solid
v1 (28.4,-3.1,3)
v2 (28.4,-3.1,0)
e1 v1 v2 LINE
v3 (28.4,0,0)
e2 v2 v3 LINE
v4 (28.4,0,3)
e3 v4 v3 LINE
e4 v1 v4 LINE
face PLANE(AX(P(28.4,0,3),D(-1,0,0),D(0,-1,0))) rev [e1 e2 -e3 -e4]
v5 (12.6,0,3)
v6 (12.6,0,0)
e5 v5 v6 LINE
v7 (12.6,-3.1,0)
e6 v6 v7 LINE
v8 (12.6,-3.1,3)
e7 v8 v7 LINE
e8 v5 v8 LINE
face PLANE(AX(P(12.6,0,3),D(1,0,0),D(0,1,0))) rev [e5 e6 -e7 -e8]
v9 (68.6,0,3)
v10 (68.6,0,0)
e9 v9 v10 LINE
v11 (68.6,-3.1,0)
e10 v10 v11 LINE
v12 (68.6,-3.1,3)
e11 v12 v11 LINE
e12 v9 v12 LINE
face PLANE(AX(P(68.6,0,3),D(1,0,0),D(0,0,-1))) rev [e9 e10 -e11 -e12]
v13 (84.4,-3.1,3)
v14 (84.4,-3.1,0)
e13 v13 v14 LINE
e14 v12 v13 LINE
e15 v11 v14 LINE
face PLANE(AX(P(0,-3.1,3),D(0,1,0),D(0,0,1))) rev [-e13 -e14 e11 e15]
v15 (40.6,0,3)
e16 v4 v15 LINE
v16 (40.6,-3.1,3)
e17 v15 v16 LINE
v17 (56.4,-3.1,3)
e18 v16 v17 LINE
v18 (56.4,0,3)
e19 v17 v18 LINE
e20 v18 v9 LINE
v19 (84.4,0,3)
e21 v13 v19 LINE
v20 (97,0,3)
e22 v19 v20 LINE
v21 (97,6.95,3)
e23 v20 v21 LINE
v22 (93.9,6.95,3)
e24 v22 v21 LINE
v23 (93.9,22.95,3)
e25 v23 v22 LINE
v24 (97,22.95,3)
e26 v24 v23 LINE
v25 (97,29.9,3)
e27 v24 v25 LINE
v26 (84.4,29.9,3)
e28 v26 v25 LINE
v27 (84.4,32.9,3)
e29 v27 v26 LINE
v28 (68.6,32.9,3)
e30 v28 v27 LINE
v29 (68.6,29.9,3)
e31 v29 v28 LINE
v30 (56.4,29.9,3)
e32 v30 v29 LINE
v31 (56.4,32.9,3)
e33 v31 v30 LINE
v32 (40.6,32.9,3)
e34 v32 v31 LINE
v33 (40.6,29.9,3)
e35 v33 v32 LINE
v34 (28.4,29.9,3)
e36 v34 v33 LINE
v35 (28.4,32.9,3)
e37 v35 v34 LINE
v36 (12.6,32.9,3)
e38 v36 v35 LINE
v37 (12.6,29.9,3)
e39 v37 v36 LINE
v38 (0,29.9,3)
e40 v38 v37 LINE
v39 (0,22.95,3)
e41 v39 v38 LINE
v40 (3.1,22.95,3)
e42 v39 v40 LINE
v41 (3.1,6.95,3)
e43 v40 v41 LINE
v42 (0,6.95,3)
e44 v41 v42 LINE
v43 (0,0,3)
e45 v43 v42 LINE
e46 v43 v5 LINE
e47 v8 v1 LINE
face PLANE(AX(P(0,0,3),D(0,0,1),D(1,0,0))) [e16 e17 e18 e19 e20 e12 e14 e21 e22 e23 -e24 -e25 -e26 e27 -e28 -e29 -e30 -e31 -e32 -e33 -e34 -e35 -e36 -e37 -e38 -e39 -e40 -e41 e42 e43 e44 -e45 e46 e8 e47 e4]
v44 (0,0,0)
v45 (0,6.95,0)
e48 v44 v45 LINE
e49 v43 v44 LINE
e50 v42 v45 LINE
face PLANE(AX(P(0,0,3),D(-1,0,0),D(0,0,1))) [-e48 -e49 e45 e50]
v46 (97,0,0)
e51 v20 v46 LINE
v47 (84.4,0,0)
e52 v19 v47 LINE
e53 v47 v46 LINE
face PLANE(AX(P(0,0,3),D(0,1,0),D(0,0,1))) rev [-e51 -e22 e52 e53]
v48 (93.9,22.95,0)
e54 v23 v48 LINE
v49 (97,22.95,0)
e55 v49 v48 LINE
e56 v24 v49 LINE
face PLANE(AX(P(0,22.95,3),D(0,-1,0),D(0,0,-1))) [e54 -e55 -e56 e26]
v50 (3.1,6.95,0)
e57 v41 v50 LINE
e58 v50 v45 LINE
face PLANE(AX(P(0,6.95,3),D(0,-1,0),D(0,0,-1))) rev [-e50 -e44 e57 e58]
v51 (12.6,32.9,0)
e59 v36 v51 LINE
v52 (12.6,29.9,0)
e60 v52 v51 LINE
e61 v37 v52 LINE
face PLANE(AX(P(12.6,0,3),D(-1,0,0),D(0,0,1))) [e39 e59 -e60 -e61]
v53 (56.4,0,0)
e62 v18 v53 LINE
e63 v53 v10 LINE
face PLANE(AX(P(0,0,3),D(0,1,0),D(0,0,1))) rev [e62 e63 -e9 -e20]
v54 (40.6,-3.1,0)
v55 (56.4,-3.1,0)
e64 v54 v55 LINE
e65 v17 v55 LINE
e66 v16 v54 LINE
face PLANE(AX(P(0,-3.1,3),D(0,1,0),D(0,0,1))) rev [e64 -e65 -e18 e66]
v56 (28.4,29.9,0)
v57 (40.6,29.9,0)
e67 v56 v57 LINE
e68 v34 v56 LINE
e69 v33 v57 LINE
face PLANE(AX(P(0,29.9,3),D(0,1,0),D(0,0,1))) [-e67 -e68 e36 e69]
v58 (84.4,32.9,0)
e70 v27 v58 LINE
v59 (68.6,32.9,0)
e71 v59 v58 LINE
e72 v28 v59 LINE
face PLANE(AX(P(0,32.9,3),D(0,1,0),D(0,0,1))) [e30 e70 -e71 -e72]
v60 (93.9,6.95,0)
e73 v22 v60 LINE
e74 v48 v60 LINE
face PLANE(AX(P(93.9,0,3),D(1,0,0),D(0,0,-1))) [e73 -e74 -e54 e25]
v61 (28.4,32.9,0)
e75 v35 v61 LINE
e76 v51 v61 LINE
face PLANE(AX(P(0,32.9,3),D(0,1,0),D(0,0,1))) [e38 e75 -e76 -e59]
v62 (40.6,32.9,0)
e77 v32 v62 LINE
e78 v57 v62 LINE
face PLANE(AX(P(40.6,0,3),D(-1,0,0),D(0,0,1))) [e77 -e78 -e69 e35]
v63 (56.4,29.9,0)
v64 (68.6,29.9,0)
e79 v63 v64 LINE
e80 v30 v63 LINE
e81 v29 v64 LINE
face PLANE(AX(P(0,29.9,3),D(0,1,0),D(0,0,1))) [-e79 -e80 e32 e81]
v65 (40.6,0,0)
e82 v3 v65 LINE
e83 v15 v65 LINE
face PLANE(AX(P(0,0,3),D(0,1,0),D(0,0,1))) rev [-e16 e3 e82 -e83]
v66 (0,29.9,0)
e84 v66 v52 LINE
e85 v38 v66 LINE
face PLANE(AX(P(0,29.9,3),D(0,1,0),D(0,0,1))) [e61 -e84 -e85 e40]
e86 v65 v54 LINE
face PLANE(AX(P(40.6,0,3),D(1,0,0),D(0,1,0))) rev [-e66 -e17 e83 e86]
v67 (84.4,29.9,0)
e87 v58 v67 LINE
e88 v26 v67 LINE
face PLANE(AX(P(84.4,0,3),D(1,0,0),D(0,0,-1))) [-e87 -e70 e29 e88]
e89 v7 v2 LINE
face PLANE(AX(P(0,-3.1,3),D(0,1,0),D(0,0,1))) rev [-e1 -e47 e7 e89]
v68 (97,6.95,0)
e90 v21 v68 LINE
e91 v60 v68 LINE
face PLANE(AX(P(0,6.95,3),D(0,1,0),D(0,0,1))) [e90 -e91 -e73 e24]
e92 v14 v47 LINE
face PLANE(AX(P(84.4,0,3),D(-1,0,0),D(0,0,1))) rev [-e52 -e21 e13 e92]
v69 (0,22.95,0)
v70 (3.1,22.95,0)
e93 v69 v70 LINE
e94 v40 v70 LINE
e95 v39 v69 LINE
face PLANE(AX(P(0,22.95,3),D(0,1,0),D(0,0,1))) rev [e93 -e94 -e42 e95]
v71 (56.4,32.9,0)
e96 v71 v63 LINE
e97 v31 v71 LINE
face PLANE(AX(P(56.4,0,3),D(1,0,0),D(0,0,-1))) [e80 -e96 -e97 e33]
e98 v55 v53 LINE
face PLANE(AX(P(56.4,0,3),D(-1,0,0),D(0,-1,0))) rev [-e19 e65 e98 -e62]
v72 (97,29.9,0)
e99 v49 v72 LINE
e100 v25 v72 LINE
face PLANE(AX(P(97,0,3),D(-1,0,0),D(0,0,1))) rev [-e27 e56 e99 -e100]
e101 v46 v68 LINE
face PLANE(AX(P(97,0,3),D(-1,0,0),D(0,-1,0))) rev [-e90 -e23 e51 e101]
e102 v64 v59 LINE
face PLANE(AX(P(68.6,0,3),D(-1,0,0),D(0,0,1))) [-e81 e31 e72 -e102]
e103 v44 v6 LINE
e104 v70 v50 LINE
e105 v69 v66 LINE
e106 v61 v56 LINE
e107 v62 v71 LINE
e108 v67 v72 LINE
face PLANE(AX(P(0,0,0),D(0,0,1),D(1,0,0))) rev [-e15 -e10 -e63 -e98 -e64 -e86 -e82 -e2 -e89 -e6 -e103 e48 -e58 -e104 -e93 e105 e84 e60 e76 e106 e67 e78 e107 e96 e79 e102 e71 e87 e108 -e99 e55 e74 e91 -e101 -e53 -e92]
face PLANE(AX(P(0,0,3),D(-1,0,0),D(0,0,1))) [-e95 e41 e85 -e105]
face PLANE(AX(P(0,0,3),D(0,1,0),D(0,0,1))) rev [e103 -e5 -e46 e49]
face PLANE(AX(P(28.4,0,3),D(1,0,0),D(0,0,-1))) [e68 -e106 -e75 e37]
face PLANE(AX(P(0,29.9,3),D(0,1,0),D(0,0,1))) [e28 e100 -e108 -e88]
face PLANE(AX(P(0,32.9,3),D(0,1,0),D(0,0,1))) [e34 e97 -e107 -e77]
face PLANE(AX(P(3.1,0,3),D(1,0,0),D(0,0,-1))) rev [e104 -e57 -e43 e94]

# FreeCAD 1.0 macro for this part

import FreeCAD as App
import Part
import Sketcher

V = App.Vector

doc = App.newDocument("Part")
body = doc.addObject("PartDesign::Body", "Body")

# Sketch on XY plane
sketch1 = body.newObject("Sketcher::SketchObject", "Sketch")
sketch1.AttachmentSupport = (doc.getObject("XY_Plane"), [""])
sketch1.MapMode = "FlatFace"
sketch1.addGeometry([
    Part.LineSegment(V(93.9, 22.95, 0), V(97, 22.95, 0)),  # 0
    Part.LineSegment(V(97, 22.95, 0), V(97, 29.9, 0)),  # 1
    Part.LineSegment(V(97, 29.9, 0), V(84.4, 29.9, 0)),  # 2
    Part.LineSegment(V(84.4, 29.9, 0), V(84.4, 32.9, 0)),  # 3
    Part.LineSegment(V(84.4, 32.9, 0), V(68.6, 32.9, 0)),  # 4
    Part.LineSegment(V(68.6, 32.9, 0), V(68.6, 29.9, 0)),  # 5
    Part.LineSegment(V(68.6, 29.9, 0), V(56.4, 29.9, 0)),  # 6
    Part.LineSegment(V(56.4, 29.9, 0), V(56.4, 32.9, 0)),  # 7
    Part.LineSegment(V(56.4, 32.9, 0), V(40.6, 32.9, 0)),  # 8
    Part.LineSegment(V(40.6, 32.9, 0), V(40.6, 29.9, 0)),  # 9
    Part.LineSegment(V(40.6, 29.9, 0), V(28.4, 29.9, 0)),  # 10
    Part.LineSegment(V(28.4, 29.9, 0), V(28.4, 32.9, 0)),  # 11
    Part.LineSegment(V(28.4, 32.9, 0), V(12.6, 32.9, 0)),  # 12
    Part.LineSegment(V(12.6, 32.9, 0), V(12.6, 29.9, 0)),  # 13
    Part.LineSegment(V(12.6, 29.9, 0), V(0, 29.9, 0)),  # 14
    Part.LineSegment(V(0, 29.9, 0), V(0, 22.95, 0)),  # 15
    Part.LineSegment(V(0, 22.95, 0), V(3.1, 22.95, 0)),  # 16
    Part.LineSegment(V(3.1, 22.95, 0), V(3.1, 6.95, 0)),  # 17
    Part.LineSegment(V(3.1, 6.95, 0), V(0, 6.95, 0)),  # 18
    Part.LineSegment(V(0, 6.95, 0), V(0, 0, 0)),  # 19
    Part.LineSegment(V(0, 0, 0), V(12.6, 0, 0)),  # 20
    Part.LineSegment(V(12.6, 0, 0), V(12.6, -3.1, 0)),  # 21
    Part.LineSegment(V(12.6, -3.1, 0), V(28.4, -3.1, 0)),  # 22
    Part.LineSegment(V(28.4, -3.1, 0), V(28.4, 0, 0)),  # 23
    Part.LineSegment(V(28.4, 0, 0), V(40.6, 0, 0)),  # 24
    Part.LineSegment(V(40.6, 0, 0), V(40.6, -3.1, 0)),  # 25
    Part.LineSegment(V(40.6, -3.1, 0), V(56.4, -3.1, 0)),  # 26
    Part.LineSegment(V(56.4, -3.1, 0), V(56.4, 0, 0)),  # 27
    Part.LineSegment(V(56.4, 0, 0), V(68.6, 0, 0)),  # 28
    Part.LineSegment(V(68.6, 0, 0), V(68.6, -3.1, 0)),  # 29
    Part.LineSegment(V(68.6, -3.1, 0), V(84.4, -3.1, 0)),  # 30
    Part.LineSegment(V(84.4, -3.1, 0), V(84.4, 0, 0)),  # 31
    Part.LineSegment(V(84.4, 0, 0), V(97, 0, 0)),  # 32
    Part.LineSegment(V(97, 0, 0), V(97, 6.95, 0)),  # 33
    Part.LineSegment(V(97, 6.95, 0), V(93.9, 6.95, 0)),  # 34
    Part.LineSegment(V(93.9, 6.95, 0), V(93.9, 22.95, 0)),  # 35
], False)
sketch1.addConstraint([
    Sketcher.Constraint("Coincident", 0, 2, 1, 1),
    Sketcher.Constraint("Coincident", 1, 2, 2, 1),
    Sketcher.Constraint("Coincident", 2, 2, 3, 1),
    Sketcher.Constraint("Coincident", 3, 2, 4, 1),
    Sketcher.Constraint("Coincident", 4, 2, 5, 1),
    Sketcher.Constraint("Coincident", 5, 2, 6, 1),
    Sketcher.Constraint("Coincident", 6, 2, 7, 1),
    Sketcher.Constraint("Coincident", 7, 2, 8, 1),
    Sketcher.Constraint("Coincident", 8, 2, 9, 1),
    Sketcher.Constraint("Coincident", 9, 2, 10, 1),
    Sketcher.Constraint("Coincident", 10, 2, 11, 1),
    Sketcher.Constraint("Coincident", 11, 2, 12, 1),
    Sketcher.Constraint("Coincident", 12, 2, 13, 1),
    Sketcher.Constraint("Coincident", 13, 2, 14, 1),
    Sketcher.Constraint("Coincident", 14, 2, 15, 1),
    Sketcher.Constraint("Coincident", 15, 2, 16, 1),
    Sketcher.Constraint("Coincident", 16, 2, 17, 1),
    Sketcher.Constraint("Coincident", 17, 2, 18, 1),
    Sketcher.Constraint("Coincident", 18, 2, 19, 1),
    Sketcher.Constraint("Coincident", 19, 2, 20, 1),
    Sketcher.Constraint("Coincident", 20, 2, 21, 1),
    Sketcher.Constraint("Coincident", 21, 2, 22, 1),
    Sketcher.Constraint("Coincident", 22, 2, 23, 1),
    Sketcher.Constraint("Coincident", 23, 2, 24, 1),
    Sketcher.Constraint("Coincident", 24, 2, 25, 1),
    Sketcher.Constraint("Coincident", 25, 2, 26, 1),
    Sketcher.Constraint("Coincident", 26, 2, 27, 1),
    Sketcher.Constraint("Coincident", 27, 2, 28, 1),
    Sketcher.Constraint("Coincident", 28, 2, 29, 1),
    Sketcher.Constraint("Coincident", 29, 2, 30, 1),
    Sketcher.Constraint("Coincident", 30, 2, 31, 1),
    Sketcher.Constraint("Coincident", 31, 2, 32, 1),
    Sketcher.Constraint("Coincident", 32, 2, 33, 1),
    Sketcher.Constraint("Coincident", 33, 2, 34, 1),
    Sketcher.Constraint("Coincident", 34, 2, 35, 1),
    Sketcher.Constraint("Coincident", 35, 2, 0, 1),
    Sketcher.Constraint("Horizontal", 0),
    Sketcher.Constraint("Vertical", 1),
    Sketcher.Constraint("Horizontal", 2),
    Sketcher.Constraint("Vertical", 3),
    Sketcher.Constraint("Horizontal", 4),
    Sketcher.Constraint("Vertical", 5),
    Sketcher.Constraint("Horizontal", 6),
    Sketcher.Constraint("Vertical", 7),
    Sketcher.Constraint("Horizontal", 8),
    Sketcher.Constraint("Vertical", 9),
    Sketcher.Constraint("Horizontal", 10),
    Sketcher.Constraint("Vertical", 11),
    Sketcher.Constraint("Horizontal", 12),
    Sketcher.Constraint("Vertical", 13),
    Sketcher.Constraint("Horizontal", 14),
    Sketcher.Constraint("Vertical", 15),
    Sketcher.Constraint("Horizontal", 16),
    Sketcher.Constraint("Vertical", 17),
    Sketcher.Constraint("Horizontal", 18),
    Sketcher.Constraint("Vertical", 19),
    Sketcher.Constraint("Horizontal", 20),
    Sketcher.Constraint("Vertical", 21),
    Sketcher.Constraint("Horizontal", 22),
    Sketcher.Constraint("Vertical", 23),
    Sketcher.Constraint("Horizontal", 24),
    Sketcher.Constraint("Vertical", 25),
    Sketcher.Constraint("Horizontal", 26),
    Sketcher.Constraint("Vertical", 27),
    Sketcher.Constraint("Horizontal", 28),
    Sketcher.Constraint("Vertical", 29),
    Sketcher.Constraint("Horizontal", 30),
    Sketcher.Constraint("Vertical", 31),
    Sketcher.Constraint("Horizontal", 32),
    Sketcher.Constraint("Vertical", 33),
    Sketcher.Constraint("Horizontal", 34),
    Sketcher.Constraint("Vertical", 35),
    Sketcher.Constraint("Coincident", 19, 2, -1, 1),
    Sketcher.Constraint("PointOnObject", 14, 2, -2),
    Sketcher.Constraint("PointOnObject", 23, 2, -1),
    Sketcher.Constraint("PointOnObject", 27, 2, -1),
    Sketcher.Constraint("PointOnObject", 31, 2, -1),
    Sketcher.Constraint("Horizontal", 2, 2, 5, 2),
    Sketcher.Constraint("Horizontal", 4, 2, 7, 2),
    Sketcher.Constraint("Horizontal", 6, 2, 9, 2),
    Sketcher.Constraint("Horizontal", 8, 2, 11, 2),
    Sketcher.Constraint("Horizontal", 10, 2, 13, 2),
    Sketcher.Constraint("Horizontal", 0, 2, 15, 2),
    Sketcher.Constraint("Horizontal", 22, 2, 25, 2),
    Sketcher.Constraint("Horizontal", 26, 2, 29, 2),
    Sketcher.Constraint("Horizontal", 18, 2, 33, 2),
    Sketcher.Constraint("Vertical", 13, 2, 20, 2),
    Sketcher.Constraint("Vertical", 11, 2, 22, 2),
    Sketcher.Constraint("Vertical", 9, 2, 24, 2),
    Sketcher.Constraint("Vertical", 7, 2, 26, 2),
    Sketcher.Constraint("Vertical", 5, 2, 28, 2),
    Sketcher.Constraint("Vertical", 3, 2, 30, 2),
    Sketcher.Constraint("Vertical", 1, 2, 32, 2),
    Sketcher.Constraint("Equal", 4, 8),
    Sketcher.Constraint("Equal", 6, 10),
    Sketcher.Constraint("Equal", 8, 12),
    Sketcher.Constraint("Equal", 2, 14),
    Sketcher.Constraint("Equal", 0, 16),
    Sketcher.Constraint("Equal", 15, 19),
    Sketcher.Constraint("Equal", 34, 21),
    Sketcher.Constraint("DistanceY", 3, 1, 3, 2, 3.0),
    Sketcher.Constraint("DistanceY", 17, 2, 17, 1, 16.0),
    Sketcher.Constraint("DistanceX", 0, 1, 0, 2, 3.1),
    Sketcher.Constraint("DistanceX", 2, 2, 2, 1, 12.6),
    Sketcher.Constraint("DistanceX", 4, 2, 4, 1, 15.8),
    Sketcher.Constraint("DistanceX", 6, 2, 6, 1, 12.2),
    Sketcher.Constraint("DistanceY", 26, 2, 6, 2, 33.0),
])
pad1 = body.newObject("PartDesign::Pad", "Pad")
pad1.Profile = sketch1
pad1.Length = 3

doc.recompute()
